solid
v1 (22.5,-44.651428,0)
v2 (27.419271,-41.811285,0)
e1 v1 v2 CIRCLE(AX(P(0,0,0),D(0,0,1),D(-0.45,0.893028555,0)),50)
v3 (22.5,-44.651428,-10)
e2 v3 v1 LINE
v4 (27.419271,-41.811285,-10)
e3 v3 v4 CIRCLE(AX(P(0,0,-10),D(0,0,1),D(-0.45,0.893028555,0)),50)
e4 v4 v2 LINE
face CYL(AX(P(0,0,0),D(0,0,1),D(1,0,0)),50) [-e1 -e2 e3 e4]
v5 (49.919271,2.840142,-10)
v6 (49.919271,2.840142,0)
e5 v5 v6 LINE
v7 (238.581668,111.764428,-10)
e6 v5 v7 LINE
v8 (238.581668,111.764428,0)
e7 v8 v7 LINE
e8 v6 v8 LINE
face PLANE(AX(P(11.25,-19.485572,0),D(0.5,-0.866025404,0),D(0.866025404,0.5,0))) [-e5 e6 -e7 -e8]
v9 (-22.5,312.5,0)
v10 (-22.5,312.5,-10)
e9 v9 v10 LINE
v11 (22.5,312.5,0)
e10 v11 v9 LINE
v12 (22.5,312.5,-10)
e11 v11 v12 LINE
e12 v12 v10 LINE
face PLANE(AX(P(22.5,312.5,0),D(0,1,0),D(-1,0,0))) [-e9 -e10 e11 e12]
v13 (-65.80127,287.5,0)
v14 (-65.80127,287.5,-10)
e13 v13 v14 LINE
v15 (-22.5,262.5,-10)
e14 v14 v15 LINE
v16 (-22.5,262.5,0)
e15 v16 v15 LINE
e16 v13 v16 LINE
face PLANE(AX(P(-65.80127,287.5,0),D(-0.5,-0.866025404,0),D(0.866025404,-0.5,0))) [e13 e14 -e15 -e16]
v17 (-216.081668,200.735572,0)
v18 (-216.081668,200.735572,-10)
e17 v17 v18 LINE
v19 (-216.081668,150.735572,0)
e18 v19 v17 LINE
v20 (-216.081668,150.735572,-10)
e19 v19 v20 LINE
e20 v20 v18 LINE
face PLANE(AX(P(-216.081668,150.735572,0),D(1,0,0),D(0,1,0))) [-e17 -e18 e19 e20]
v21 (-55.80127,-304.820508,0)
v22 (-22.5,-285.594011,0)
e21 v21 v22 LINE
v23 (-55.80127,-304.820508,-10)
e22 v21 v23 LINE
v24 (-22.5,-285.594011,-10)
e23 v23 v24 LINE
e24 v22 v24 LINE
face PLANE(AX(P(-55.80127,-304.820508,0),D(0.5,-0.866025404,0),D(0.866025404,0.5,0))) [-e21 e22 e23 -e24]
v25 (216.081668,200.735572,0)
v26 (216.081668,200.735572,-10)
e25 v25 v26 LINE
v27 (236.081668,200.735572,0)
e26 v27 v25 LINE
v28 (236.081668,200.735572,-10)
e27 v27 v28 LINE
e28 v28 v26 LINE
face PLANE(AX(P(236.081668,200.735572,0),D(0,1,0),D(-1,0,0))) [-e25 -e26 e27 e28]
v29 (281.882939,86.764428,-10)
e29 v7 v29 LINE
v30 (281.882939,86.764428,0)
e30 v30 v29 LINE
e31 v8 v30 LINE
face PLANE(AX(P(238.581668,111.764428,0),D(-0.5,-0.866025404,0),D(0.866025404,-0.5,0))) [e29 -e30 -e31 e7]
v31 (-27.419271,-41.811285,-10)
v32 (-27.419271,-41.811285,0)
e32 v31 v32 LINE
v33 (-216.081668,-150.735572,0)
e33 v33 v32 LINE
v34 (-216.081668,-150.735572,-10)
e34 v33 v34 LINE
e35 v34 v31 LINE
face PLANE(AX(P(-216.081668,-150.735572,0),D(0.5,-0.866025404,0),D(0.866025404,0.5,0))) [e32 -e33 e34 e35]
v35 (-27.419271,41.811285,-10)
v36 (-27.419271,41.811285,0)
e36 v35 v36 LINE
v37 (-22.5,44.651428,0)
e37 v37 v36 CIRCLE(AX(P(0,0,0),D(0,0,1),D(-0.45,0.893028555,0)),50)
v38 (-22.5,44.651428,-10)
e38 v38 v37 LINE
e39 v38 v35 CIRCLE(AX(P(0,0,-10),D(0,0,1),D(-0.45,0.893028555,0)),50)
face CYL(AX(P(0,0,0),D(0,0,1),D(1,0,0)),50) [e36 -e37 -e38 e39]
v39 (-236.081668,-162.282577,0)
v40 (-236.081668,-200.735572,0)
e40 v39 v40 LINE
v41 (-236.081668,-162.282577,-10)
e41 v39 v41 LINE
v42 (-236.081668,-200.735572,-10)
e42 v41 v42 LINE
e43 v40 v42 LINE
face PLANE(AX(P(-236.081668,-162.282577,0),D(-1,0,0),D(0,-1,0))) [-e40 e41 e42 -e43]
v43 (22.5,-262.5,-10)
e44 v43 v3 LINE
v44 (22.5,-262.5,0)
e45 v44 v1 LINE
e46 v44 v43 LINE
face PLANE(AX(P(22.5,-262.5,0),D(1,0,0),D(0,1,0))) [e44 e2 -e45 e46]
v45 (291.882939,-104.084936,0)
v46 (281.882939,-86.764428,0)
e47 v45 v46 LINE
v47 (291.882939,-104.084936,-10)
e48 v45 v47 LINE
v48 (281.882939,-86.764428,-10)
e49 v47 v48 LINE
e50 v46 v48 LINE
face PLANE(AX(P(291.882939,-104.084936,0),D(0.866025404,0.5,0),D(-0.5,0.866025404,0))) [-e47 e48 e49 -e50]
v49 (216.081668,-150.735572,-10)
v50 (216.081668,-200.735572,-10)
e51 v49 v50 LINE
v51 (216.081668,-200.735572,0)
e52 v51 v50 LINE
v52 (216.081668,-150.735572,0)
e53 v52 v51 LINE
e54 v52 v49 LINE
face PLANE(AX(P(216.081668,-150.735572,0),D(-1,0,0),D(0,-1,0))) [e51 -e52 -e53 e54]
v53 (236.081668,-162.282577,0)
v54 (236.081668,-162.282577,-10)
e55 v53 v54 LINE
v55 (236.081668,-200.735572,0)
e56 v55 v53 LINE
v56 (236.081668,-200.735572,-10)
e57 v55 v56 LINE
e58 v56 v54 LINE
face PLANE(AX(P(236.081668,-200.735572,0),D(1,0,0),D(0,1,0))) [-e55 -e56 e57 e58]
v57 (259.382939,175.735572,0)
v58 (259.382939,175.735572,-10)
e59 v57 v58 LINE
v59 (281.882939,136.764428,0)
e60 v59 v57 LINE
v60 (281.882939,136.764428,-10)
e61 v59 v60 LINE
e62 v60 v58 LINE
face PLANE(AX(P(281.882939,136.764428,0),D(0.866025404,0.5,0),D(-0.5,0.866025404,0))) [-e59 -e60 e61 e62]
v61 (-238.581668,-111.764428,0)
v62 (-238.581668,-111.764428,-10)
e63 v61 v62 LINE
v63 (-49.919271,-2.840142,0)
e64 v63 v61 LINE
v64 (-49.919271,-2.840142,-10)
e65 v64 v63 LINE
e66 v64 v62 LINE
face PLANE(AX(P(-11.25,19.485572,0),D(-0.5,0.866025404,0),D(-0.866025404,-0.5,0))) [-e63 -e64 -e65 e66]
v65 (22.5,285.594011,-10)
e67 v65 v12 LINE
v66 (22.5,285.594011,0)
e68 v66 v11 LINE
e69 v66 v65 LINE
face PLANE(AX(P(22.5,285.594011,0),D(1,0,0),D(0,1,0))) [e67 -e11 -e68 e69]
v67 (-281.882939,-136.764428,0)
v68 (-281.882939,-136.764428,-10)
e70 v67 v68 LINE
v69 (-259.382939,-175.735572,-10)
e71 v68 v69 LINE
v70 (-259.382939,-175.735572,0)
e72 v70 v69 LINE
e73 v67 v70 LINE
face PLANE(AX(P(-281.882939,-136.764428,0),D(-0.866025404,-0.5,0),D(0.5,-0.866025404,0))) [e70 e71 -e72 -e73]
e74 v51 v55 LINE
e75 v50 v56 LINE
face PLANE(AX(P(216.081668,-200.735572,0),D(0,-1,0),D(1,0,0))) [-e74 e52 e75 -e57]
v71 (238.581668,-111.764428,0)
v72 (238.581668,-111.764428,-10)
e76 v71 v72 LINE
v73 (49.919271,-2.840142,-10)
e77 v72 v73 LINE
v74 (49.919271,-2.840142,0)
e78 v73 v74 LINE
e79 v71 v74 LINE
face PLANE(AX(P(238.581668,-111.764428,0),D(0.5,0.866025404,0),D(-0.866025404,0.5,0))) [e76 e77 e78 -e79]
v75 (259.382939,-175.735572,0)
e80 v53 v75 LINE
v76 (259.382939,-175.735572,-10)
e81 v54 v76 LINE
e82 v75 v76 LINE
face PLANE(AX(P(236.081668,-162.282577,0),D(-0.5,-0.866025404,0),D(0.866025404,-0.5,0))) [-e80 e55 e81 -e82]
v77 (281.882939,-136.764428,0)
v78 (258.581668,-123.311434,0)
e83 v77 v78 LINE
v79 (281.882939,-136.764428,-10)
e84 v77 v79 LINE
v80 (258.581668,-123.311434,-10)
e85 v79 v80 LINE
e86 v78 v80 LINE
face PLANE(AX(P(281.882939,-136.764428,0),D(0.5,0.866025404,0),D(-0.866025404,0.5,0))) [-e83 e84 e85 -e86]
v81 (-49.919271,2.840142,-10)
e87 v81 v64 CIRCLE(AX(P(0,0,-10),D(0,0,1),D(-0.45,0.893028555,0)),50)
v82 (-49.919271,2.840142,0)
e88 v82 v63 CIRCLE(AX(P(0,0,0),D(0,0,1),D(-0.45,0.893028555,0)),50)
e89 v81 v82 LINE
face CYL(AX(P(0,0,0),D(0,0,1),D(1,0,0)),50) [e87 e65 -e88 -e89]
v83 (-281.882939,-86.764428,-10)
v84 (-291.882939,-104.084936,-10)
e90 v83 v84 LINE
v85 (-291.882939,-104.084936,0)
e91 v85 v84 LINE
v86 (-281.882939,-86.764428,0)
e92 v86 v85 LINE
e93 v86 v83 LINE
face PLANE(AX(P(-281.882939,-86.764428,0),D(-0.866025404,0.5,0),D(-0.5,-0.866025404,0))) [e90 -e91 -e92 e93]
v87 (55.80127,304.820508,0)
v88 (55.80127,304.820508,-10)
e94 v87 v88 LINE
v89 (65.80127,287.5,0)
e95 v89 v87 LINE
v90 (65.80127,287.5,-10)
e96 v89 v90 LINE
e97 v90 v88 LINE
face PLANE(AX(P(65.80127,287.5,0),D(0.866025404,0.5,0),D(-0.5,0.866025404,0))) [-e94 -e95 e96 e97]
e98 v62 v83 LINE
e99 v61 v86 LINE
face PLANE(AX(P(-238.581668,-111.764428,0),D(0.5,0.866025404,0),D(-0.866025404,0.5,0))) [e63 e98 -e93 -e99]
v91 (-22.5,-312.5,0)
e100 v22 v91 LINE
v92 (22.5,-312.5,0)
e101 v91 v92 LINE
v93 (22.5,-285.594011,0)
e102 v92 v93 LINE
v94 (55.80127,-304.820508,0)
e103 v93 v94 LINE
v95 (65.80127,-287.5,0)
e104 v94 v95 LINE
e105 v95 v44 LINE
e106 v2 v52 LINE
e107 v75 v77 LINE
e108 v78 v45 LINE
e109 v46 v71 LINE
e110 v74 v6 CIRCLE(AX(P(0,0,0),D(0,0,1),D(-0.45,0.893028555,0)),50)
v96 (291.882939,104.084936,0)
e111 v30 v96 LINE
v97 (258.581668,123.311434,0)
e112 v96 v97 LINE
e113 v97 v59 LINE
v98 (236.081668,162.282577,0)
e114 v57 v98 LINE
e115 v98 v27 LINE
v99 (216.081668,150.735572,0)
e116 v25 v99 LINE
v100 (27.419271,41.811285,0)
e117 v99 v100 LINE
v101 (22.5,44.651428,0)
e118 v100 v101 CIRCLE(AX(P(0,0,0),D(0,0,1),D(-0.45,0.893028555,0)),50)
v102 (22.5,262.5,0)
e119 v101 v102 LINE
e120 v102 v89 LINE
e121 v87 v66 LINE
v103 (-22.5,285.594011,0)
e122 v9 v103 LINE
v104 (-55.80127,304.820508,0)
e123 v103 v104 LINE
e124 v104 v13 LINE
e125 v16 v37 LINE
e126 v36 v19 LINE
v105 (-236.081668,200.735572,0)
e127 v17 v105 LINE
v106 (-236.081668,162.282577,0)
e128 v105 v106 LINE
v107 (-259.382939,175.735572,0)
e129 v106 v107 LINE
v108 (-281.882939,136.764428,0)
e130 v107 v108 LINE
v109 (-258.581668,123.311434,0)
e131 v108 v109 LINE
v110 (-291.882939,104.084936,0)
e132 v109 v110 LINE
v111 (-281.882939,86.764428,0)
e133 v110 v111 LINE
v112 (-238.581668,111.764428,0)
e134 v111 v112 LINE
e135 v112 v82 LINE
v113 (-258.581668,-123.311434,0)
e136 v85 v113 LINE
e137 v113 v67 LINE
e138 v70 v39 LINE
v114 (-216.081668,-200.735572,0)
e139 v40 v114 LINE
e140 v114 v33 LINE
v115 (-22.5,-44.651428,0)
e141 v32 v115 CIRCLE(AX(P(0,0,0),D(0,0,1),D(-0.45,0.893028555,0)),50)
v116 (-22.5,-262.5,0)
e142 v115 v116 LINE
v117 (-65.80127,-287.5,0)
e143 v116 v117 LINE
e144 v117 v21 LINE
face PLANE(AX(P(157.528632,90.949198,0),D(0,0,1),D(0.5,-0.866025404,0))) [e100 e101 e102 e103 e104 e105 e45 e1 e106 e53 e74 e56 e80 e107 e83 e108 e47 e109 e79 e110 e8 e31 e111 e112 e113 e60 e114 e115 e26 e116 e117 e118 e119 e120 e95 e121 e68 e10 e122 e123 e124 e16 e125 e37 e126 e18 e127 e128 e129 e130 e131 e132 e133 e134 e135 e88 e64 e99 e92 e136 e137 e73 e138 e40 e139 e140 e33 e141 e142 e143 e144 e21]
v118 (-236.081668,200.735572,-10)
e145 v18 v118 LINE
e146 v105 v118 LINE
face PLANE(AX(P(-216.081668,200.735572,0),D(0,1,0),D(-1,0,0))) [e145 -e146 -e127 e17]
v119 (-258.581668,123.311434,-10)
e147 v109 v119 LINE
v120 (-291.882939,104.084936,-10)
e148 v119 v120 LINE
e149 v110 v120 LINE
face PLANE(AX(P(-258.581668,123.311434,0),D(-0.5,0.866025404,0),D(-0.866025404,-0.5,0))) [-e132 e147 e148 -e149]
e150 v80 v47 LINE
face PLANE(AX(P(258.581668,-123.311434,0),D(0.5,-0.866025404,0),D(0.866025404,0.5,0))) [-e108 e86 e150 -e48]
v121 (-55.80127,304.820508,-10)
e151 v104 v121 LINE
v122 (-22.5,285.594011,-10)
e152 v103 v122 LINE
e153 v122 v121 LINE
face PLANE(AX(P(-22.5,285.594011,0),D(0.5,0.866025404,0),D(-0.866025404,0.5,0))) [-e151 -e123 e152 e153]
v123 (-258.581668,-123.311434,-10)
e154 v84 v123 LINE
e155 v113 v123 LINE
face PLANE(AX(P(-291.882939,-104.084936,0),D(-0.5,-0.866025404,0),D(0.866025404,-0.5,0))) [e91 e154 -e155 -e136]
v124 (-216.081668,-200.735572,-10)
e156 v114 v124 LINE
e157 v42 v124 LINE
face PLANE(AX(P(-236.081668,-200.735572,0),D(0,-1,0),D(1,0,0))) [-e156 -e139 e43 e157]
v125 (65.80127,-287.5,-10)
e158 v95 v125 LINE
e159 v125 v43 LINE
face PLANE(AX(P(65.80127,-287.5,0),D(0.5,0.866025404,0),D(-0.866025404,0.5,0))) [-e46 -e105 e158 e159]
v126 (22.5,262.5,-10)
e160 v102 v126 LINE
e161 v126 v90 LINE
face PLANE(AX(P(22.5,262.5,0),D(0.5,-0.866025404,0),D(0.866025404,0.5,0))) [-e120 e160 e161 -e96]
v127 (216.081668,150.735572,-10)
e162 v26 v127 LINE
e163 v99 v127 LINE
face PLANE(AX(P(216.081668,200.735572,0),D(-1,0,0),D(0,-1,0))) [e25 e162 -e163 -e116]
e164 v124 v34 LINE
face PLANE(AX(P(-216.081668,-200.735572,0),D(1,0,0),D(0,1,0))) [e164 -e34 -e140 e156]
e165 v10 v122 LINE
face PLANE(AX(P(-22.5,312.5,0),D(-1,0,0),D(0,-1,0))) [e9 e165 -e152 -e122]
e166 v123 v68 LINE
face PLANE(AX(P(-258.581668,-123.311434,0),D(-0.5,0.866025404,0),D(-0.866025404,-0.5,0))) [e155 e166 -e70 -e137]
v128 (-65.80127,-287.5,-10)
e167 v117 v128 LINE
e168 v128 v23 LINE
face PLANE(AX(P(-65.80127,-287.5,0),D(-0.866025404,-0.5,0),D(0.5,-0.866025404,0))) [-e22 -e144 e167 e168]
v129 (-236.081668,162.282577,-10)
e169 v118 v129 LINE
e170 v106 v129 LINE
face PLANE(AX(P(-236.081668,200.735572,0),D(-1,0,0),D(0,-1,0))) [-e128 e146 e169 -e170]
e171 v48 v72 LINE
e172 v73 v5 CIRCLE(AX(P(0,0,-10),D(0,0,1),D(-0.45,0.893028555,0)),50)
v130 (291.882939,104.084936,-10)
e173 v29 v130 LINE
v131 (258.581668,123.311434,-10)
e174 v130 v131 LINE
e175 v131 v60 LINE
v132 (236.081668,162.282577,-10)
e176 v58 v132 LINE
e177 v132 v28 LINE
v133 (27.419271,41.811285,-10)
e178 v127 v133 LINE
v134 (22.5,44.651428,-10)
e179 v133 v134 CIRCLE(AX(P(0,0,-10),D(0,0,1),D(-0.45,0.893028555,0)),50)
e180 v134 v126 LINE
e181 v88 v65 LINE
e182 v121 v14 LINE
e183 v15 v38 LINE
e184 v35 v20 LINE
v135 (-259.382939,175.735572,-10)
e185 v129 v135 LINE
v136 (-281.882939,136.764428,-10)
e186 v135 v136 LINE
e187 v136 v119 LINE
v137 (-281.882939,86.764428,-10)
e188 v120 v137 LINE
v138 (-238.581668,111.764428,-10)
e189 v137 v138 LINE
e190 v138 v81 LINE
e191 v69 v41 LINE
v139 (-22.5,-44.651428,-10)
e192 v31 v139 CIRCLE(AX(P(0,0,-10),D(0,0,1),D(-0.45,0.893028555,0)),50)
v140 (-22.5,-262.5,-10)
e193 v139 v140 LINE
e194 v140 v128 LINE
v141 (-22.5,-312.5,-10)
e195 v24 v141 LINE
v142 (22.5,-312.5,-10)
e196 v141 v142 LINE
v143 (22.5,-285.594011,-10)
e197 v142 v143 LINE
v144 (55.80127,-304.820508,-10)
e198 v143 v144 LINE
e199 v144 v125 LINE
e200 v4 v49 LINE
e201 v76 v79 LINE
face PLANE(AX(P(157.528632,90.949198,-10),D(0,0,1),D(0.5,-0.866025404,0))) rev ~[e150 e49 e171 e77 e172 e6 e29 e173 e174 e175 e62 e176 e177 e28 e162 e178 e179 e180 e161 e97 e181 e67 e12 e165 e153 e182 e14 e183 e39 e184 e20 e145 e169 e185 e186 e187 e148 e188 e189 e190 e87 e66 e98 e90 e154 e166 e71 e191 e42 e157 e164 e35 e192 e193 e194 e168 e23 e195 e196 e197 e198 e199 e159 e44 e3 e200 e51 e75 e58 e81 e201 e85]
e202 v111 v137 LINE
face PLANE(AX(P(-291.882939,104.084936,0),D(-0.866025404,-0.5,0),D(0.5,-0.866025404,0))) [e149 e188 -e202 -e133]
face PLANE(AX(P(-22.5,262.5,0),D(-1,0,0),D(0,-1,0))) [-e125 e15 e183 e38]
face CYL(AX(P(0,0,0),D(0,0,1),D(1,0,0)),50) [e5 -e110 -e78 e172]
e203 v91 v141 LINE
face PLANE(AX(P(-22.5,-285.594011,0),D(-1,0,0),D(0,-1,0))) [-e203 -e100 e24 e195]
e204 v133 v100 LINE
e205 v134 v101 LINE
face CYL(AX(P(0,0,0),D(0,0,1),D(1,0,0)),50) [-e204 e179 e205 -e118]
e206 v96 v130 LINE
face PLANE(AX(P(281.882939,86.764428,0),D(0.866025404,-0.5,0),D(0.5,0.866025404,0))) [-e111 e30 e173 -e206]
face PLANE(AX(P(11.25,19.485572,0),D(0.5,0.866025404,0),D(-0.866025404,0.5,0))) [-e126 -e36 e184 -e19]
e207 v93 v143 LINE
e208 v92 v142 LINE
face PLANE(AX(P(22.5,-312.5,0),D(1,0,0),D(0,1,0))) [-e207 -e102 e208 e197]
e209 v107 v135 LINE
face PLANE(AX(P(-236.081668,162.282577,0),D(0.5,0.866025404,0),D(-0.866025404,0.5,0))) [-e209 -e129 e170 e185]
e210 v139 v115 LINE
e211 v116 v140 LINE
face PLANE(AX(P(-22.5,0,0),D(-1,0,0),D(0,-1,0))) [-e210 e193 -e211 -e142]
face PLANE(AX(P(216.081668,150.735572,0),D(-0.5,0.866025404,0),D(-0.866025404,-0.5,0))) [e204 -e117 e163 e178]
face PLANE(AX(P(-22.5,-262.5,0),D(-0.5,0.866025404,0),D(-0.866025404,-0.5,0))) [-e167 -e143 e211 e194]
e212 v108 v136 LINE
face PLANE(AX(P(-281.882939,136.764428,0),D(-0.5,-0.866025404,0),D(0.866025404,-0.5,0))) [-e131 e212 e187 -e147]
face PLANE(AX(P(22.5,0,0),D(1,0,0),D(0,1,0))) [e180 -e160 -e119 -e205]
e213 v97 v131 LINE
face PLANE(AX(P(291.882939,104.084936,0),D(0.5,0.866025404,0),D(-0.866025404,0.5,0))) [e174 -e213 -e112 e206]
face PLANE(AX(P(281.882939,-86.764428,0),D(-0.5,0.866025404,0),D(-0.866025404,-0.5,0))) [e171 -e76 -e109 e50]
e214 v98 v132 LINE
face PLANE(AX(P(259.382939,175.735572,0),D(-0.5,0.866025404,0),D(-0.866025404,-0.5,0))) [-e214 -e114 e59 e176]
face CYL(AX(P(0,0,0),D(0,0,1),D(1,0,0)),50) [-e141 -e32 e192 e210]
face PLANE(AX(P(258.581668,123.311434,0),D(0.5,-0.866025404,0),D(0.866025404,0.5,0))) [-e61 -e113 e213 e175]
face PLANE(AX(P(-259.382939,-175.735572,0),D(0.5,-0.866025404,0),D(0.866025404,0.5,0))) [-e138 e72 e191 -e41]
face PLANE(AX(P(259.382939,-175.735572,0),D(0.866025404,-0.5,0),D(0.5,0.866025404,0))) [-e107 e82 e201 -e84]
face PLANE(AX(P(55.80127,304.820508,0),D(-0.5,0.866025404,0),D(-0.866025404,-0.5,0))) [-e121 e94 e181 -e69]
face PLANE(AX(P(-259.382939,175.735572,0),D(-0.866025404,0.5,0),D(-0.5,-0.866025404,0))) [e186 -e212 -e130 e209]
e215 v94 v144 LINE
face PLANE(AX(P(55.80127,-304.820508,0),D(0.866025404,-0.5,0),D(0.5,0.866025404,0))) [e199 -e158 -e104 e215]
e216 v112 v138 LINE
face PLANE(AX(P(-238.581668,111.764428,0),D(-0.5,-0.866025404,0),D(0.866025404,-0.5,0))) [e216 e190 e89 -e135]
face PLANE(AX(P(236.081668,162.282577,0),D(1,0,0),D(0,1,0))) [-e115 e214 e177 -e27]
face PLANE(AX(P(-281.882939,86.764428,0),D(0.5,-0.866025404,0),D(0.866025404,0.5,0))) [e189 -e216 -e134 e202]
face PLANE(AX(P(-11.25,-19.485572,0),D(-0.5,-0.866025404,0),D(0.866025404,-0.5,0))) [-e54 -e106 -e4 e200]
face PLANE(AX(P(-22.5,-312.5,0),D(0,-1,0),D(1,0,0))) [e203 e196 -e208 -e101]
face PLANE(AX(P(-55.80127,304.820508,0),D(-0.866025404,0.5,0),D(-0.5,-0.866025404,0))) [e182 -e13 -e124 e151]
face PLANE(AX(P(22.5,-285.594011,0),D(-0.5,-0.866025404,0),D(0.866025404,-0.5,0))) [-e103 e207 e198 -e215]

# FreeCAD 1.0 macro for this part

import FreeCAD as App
import Part
import Sketcher

V = App.Vector
Q = App.Units.Quantity


def add_polygon(sketch, points):
    """Adds a closed chain of lines whose ends are joined by coincident constraints."""
    first, n = sketch.GeometryCount, len(points)
    for a, b in zip(points, points[1:] + points[:1]):
        sketch.addGeometry(Part.LineSegment(App.Vector(*a, 0), App.Vector(*b, 0)), False)
    for i in range(n):
        sketch.addConstraint(Sketcher.Constraint("Coincident", first + i, 2, first + (i + 1) % n, 1))

doc = App.newDocument("Part")
body = doc.addObject("PartDesign::Body", "Body")

sketch1 = body.newObject("Sketcher::SketchObject", "Sketch")
sketch1.AttachmentSupport = (doc.getObject("XY_Plane"), [""])
sketch1.MapMode = "FlatFace"
sketch1.addGeometry(Part.Circle(V(0, 0, 0), V(0, 0, 1), 50), False)
sketch1.addConstraint([
    Sketcher.Constraint("Coincident", 0, 3, -1, 1),
    Sketcher.Constraint("Diameter", 0, Q("100 mm")),
])
pad1 = body.newObject("PartDesign::Pad", "Pad")
pad1.Profile = sketch1
pad1.Length = 10
pad1.Reversed = True

sketch2 = body.newObject("Sketcher::SketchObject", "Sketch001")
sketch2.AttachmentSupport = (doc.getObject("XY_Plane"), [""])
sketch2.MapMode = "FlatFace"
add_polygon(sketch2, [(-22, 262), (-22, 0), (22, 0), (22, 262), (66, 288), (56, 305), (22, 286), (22, 312), (-22, 312), (-22, 286), (-56, 305), (-66, 288)])
sketch2.addConstraint([
    Sketcher.Constraint("Vertical", 0),
    Sketcher.Constraint("Horizontal", 1),
    Sketcher.Constraint("Vertical", 2),
    Sketcher.Constraint("Vertical", 6),
    Sketcher.Constraint("Horizontal", 7),
    Sketcher.Constraint("Vertical", 8),
    Sketcher.Constraint("Symmetric", 0, 2, 1, 2, -1, 1),
    Sketcher.Constraint("Symmetric", 5, 2, 8, 2, -2),
    Sketcher.Constraint("Symmetric", 4, 2, 9, 2, -2),
    Sketcher.Constraint("Symmetric", 3, 2, 10, 2, -2),
    Sketcher.Constraint("Perpendicular", 3, 4),
    Sketcher.Constraint("Perpendicular", 4, 5),
    Sketcher.Constraint("Perpendicular", 10, 11),
    Sketcher.Constraint("Vertical", 2, 2, 5, 2),
    Sketcher.Constraint("DistanceX", 1, 1, 1, 2, Q("45 mm")),
    Sketcher.Constraint("Angle", 3, Q("30 deg")),
    Sketcher.Constraint("Distance", 3, Q("50 mm")),
    Sketcher.Constraint("Distance", 4, Q("20 mm")),
    Sketcher.Constraint("DistanceY", 0, 2, 0, 1, Q("262.5 mm")),
    Sketcher.Constraint("DistanceY", 3, 2, 6, 2, Q("25 mm")),
])
pad2 = body.newObject("PartDesign::Pad", "Pad001")
pad2.Profile = sketch2
pad2.Length = 10
pad2.Reversed = True
doc.recompute()

polarpattern = body.newObject("PartDesign::PolarPattern", "PolarPattern")
polarpattern.Originals = [pad2]
polarpattern.Axis = (doc.getObject("Z_Axis"), [""])
polarpattern.Angle = 360
polarpattern.Occurrences = 6
body.Tip = polarpattern

doc.recompute()
